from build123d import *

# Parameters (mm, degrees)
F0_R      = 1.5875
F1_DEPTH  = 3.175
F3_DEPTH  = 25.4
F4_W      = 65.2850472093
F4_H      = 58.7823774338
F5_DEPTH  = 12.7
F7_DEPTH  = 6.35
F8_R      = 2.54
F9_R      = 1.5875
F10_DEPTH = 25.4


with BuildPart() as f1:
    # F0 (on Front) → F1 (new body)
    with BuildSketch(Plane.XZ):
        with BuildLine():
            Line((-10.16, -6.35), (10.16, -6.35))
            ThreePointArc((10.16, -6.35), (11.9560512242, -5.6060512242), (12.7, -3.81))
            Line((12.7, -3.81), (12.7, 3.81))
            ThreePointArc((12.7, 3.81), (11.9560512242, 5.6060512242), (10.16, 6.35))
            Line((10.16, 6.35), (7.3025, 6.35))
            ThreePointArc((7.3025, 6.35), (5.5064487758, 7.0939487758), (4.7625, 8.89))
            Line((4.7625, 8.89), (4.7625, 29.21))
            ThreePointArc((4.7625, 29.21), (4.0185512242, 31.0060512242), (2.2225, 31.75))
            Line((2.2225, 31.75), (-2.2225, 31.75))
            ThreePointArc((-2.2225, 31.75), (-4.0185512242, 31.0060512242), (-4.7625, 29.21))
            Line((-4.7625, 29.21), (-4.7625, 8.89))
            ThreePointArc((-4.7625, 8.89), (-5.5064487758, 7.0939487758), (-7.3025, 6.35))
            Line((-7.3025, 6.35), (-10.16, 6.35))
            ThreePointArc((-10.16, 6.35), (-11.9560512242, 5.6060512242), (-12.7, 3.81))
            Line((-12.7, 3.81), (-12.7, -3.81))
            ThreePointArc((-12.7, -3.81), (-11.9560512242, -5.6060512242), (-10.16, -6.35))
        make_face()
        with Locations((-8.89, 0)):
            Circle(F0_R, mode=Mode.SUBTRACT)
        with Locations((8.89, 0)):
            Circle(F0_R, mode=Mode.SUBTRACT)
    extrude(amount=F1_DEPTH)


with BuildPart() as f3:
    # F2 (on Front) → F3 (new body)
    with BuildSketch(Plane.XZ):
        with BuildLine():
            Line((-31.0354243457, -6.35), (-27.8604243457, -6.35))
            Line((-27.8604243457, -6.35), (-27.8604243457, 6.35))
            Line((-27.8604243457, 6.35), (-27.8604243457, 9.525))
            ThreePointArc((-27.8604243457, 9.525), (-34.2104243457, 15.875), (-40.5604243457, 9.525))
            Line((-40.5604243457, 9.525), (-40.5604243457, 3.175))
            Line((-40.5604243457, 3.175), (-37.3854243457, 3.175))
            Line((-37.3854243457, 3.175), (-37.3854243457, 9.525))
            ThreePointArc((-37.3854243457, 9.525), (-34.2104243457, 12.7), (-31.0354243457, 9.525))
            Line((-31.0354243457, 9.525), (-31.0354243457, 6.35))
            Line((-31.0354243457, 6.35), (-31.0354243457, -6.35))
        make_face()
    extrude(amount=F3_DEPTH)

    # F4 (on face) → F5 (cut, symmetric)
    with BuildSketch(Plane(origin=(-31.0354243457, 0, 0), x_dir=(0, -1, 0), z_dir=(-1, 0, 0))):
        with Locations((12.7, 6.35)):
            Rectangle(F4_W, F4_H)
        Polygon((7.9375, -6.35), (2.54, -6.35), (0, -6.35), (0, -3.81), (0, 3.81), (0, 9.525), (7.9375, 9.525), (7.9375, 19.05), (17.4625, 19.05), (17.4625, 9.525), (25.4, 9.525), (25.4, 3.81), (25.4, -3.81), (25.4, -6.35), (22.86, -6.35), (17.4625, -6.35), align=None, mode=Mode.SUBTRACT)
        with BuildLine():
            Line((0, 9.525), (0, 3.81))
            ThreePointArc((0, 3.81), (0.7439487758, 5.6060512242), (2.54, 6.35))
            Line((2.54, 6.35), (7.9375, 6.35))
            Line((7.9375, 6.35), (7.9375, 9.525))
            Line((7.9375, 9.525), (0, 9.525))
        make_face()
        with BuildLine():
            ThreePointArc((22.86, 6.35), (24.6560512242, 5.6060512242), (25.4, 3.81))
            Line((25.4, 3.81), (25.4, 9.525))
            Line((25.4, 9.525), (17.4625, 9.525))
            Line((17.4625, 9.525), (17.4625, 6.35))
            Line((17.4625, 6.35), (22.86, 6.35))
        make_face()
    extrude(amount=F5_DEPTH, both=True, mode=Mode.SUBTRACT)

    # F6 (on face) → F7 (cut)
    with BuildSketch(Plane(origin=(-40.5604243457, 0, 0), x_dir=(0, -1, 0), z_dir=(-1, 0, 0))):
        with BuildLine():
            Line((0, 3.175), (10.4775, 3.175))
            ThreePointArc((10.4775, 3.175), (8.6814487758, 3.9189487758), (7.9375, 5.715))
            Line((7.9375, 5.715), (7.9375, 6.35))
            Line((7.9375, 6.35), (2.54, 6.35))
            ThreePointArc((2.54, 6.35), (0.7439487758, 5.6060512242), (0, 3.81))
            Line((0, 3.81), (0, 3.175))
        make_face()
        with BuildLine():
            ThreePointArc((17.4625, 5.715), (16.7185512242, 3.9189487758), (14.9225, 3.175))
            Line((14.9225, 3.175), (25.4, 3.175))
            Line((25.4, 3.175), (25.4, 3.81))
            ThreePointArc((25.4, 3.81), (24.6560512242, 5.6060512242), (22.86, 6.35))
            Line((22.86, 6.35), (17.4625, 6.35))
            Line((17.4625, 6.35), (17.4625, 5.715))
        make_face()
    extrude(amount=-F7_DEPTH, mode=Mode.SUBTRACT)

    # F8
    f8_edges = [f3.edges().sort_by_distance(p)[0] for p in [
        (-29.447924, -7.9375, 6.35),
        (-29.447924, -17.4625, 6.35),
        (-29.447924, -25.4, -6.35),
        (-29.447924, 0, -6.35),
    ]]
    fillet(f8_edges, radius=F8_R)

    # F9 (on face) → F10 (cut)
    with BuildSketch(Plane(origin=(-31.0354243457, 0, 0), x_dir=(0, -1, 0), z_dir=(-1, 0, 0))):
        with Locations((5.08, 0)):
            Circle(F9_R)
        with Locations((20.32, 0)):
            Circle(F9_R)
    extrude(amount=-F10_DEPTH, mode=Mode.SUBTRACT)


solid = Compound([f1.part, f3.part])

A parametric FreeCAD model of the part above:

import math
import FreeCAD as App
import Part
import Sketcher
from FreeCAD import Vector
Q = App.Units.Quantity


def edges_at(feature, points):
    """Names of the edges that pass closest to the given points."""
    edges = feature.Shape.Edges
    near = lambda p: min(range(len(edges)), key=lambda i: edges[i].distToShape(Part.Vertex(*p))[0])
    return sorted({f"Edge{near(p) + 1}" for p in points})


def add_polygon(sketch, points):
    """Adds a closed chain of lines whose ends are joined by coincident constraints."""
    first, n = sketch.GeometryCount, len(points)
    for a, b in zip(points, points[1:] + points[:1]):
        sketch.addGeometry(Part.LineSegment(App.Vector(*a, 0), App.Vector(*b, 0)), False)
    for i in range(n):
        sketch.addConstraint(Sketcher.Constraint("Coincident", first + i, 2, first + (i + 1) % n, 1))

doc = App.newDocument("Part")
body = doc.addObject("PartDesign::Body", "Body")

# Sketch on XZ plane
sketch1 = body.newObject("Sketcher::SketchObject", "Sketch")
sketch1.AttachmentSupport = (doc.getObject("XZ_Plane"), [""])
sketch1.MapMode = "FlatFace"
sketch1.addGeometry([
    Part.LineSegment(Vector(-10.16, -6.35, 0), Vector(10.16, -6.35, 0)),  # 0
    Part.ArcOfCircle(Part.Circle(Vector(10.16, -3.81, 0), Vector(0, 0, 1), 2.54), math.radians(-90), math.radians(0)),  # 1
    Part.LineSegment(Vector(12.7, -3.81, 0), Vector(12.7, 3.81, 0)),  # 2
    Part.ArcOfCircle(Part.Circle(Vector(10.16, 3.81, 0), Vector(0, 0, 1), 2.54), math.radians(0), math.radians(90)),  # 3
    Part.LineSegment(Vector(10.16, 6.35, 0), Vector(7.3025, 6.35, 0)),  # 4
    Part.ArcOfCircle(Part.Circle(Vector(7.3025, 8.89, 0), Vector(0, 0, 1), 2.54), math.radians(180), math.radians(270)),  # 5
    Part.LineSegment(Vector(4.7625, 8.89, 0), Vector(4.7625, 29.21, 0)),  # 6
    Part.ArcOfCircle(Part.Circle(Vector(2.2225, 29.21, 0), Vector(0, 0, 1), 2.54), math.radians(0), math.radians(90)),  # 7
    Part.LineSegment(Vector(2.2225, 31.75, 0), Vector(-2.2225, 31.75, 0)),  # 8
    Part.ArcOfCircle(Part.Circle(Vector(-2.2225, 29.21, 0), Vector(0, 0, 1), 2.54), math.radians(90), math.radians(180)),  # 9
    Part.LineSegment(Vector(-4.7625, 29.21, 0), Vector(-4.7625, 8.89, 0)),  # 10
    Part.ArcOfCircle(Part.Circle(Vector(-7.3025, 8.89, 0), Vector(0, 0, 1), 2.54), math.radians(-90), math.radians(0)),  # 11
    Part.LineSegment(Vector(-7.3025, 6.35, 0), Vector(-10.16, 6.35, 0)),  # 12
    Part.ArcOfCircle(Part.Circle(Vector(-10.16, 3.81, 0), Vector(0, 0, 1), 2.54), math.radians(90), math.radians(180)),  # 13
    Part.LineSegment(Vector(-12.7, 3.81, 0), Vector(-12.7, -3.81, 0)),  # 14
    Part.ArcOfCircle(Part.Circle(Vector(-10.16, -3.81, 0), Vector(0, 0, 1), 2.54), math.radians(180), math.radians(270)),  # 15
    Part.Circle(Vector(-8.89, 0, 0), Vector(0, 0, 1), 1.5875),  # 16
    Part.Circle(Vector(8.89, 0, 0), Vector(0, 0, 1), 1.5875),  # 17
], False)
sketch1.addConstraint([
    Sketcher.Constraint("Tangent", 0, 2, 1, 1),
    Sketcher.Constraint("Tangent", 1, 2, 2, 1),
    Sketcher.Constraint("Tangent", 2, 2, 3, 1),
    Sketcher.Constraint("Tangent", 3, 2, 4, 1),
    Sketcher.Constraint("Tangent", 4, 2, 5, 2),
    Sketcher.Constraint("Tangent", 5, 1, 6, 1),
    Sketcher.Constraint("Tangent", 6, 2, 7, 1),
    Sketcher.Constraint("Tangent", 7, 2, 8, 1),
    Sketcher.Constraint("Tangent", 8, 2, 9, 1),
    Sketcher.Constraint("Tangent", 9, 2, 10, 1),
    Sketcher.Constraint("Tangent", 10, 2, 11, 2),
    Sketcher.Constraint("Tangent", 11, 1, 12, 1),
    Sketcher.Constraint("Tangent", 12, 2, 13, 1),
    Sketcher.Constraint("Tangent", 13, 2, 14, 1),
    Sketcher.Constraint("Tangent", 14, 2, 15, 1),
    Sketcher.Constraint("Tangent", 15, 2, 0, 1),
    Sketcher.Constraint("Horizontal", 0),
    Sketcher.Constraint("Vertical", 2),
    Sketcher.Constraint("Horizontal", 4),
    Sketcher.Constraint("Vertical", 6),
    Sketcher.Constraint("Horizontal", 8),
    Sketcher.Constraint("Vertical", 10),
    Sketcher.Constraint("Horizontal", 12),
    Sketcher.Constraint("Vertical", 14),
    Sketcher.Constraint("Equal", 1, 3),
    Sketcher.Constraint("Equal", 3, 5),
    Sketcher.Constraint("Equal", 5, 7),
    Sketcher.Constraint("Equal", 7, 9),
    Sketcher.Constraint("Equal", 9, 11),
    Sketcher.Constraint("Equal", 11, 13),
    Sketcher.Constraint("Equal", 13, 15),
    Sketcher.Constraint("Equal", 16, 17),
    Sketcher.Constraint("Symmetric", 1, 3, 13, 3, -1, 1),
    Sketcher.Constraint("Symmetric", 16, 3, 17, 3, -1, 1),
    Sketcher.Constraint("Symmetric", 5, 3, 11, 3, -2),
    Sketcher.Constraint("PointOnObject", 16, 3, -1),
    Sketcher.Constraint("Equal", 0, 6),
    Sketcher.Constraint("Radius", 1, Q("0.1 in")),
    Sketcher.Constraint("Diameter", 16, Q("0.125 in")),
    Sketcher.Constraint("DistanceX", 0, 1, 0, 2, Q("0.8 in")),
    Sketcher.Constraint("DistanceY", 2, 1, 2, 2, Q("0.3 in")),
    Sketcher.Constraint("DistanceX", 16, 3, 17, 3, Q("0.7 in")),
    Sketcher.Constraint("DistanceX", 8, 2, 8, 1, Q("0.175 in")),
])
pad1 = body.newObject("PartDesign::Pad", "Pad")
pad1.Profile = sketch1
pad1.Length = Q("0.125 in")
body2 = doc.addObject("PartDesign::Body", "Body001")

# Sketch on XZ plane
sketch2 = body2.newObject("Sketcher::SketchObject", "Sketch001")
sketch2.AttachmentSupport = (doc.getObject("XZ_Plane001"), [""])
sketch2.MapMode = "FlatFace"
sketch2.addGeometry([
    Part.LineSegment(Vector(-31.035424, -6.35, 0), Vector(-27.860424, -6.35, 0)),  # 0
    Part.LineSegment(Vector(-27.860424, -6.35, 0), Vector(-27.860424, 9.525, 0)),  # 1
    Part.ArcOfCircle(Part.Circle(Vector(-34.210424, 9.525, 0), Vector(0, 0, 1), 6.35), math.radians(0), math.radians(180)),  # 2
    Part.LineSegment(Vector(-40.560424, 9.525, 0), Vector(-40.560424, 3.175, 0)),  # 3
    Part.LineSegment(Vector(-40.560424, 3.175, 0), Vector(-37.385424, 3.175, 0)),  # 4
    Part.LineSegment(Vector(-37.385424, 3.175, 0), Vector(-37.385424, 9.525, 0)),  # 5
    Part.ArcOfCircle(Part.Circle(Vector(-34.210424, 9.525, 0), Vector(0, 0, 1), 3.175), math.radians(0), math.radians(180)),  # 6
    Part.LineSegment(Vector(-31.035424, 9.525, 0), Vector(-31.035424, -6.35, 0)),  # 7
], False)
sketch2.addConstraint([
    Sketcher.Constraint("Coincident", 0, 2, 1, 1),
    Sketcher.Constraint("Tangent", 1, 2, 2, 1),
    Sketcher.Constraint("Tangent", 2, 2, 3, 1),
    Sketcher.Constraint("Coincident", 3, 2, 4, 1),
    Sketcher.Constraint("Coincident", 4, 2, 5, 1),
    Sketcher.Constraint("Tangent", 5, 2, 6, 2),
    Sketcher.Constraint("Tangent", 6, 1, 7, 1),
    Sketcher.Constraint("Coincident", 7, 2, 0, 1),
    Sketcher.Constraint("Horizontal", 0),
    Sketcher.Constraint("Vertical", 1),
    Sketcher.Constraint("Vertical", 3),
    Sketcher.Constraint("Horizontal", 4),
    Sketcher.Constraint("Vertical", 5),
    Sketcher.Constraint("Vertical", 7),
    Sketcher.Constraint("Coincident", 6, 3, 2, 3),
    Sketcher.Constraint("Radius", 2, Q("0.25 in")),
    Sketcher.Constraint("Radius", 6, Q("0.125 in")),
    Sketcher.Constraint("DistanceY", 3, 2, 3, 1, Q("0.25 in")),
    Sketcher.Constraint("DistanceY", 1, 1, 1, 2, Q("0.625 in")),
    Sketcher.Constraint("DistanceY", 0, 2, -1, 1, Q("0.25 in")),
    Sketcher.Constraint("DistanceX", 2, 3, -1, 1, 34.210424),
])
pad2 = body2.newObject("PartDesign::Pad", "Pad001")
pad2.Profile = sketch2
pad2.Length = Q("1 in")

# Sketch on YZ plane
sketch3 = body2.newObject("Sketcher::SketchObject", "Sketch002")
sketch3.AttachmentSupport = (doc.getObject("YZ_Plane001"), [""])
sketch3.MapMode = "FlatFace"
sketch3.AttachmentOffset = App.Placement(Vector(0, 0, -31.035424), App.Rotation())
add_polygon(sketch3, [(19.942524, 35.741189), (19.942524, -23.041189), (-45.342524, -23.041189), (-45.342524, 35.741189)])  # lines 0-3
sketch3.addGeometry(Part.LineSegment(Vector(-25.4, -6.35, 0), Vector(0, -6.35, 0)), False)  # 4
sketch3.addGeometry(Part.LineSegment(Vector(0, -6.35, 0), Vector(0, 3.81, 0)), False)  # 5
sketch3.addGeometry(Part.ArcOfCircle(Part.Circle(Vector(-2.54, 3.81, 0), Vector(0, 0, 1), 2.54), math.radians(0), math.radians(90)), False)  # 6
sketch3.addGeometry(Part.LineSegment(Vector(-2.54, 6.35, 0), Vector(-7.9375, 6.35, 0)), False)  # 7
sketch3.addGeometry(Part.LineSegment(Vector(-7.9375, 6.35, 0), Vector(-7.9375, 19.05, 0)), False)  # 8
sketch3.addGeometry(Part.LineSegment(Vector(-7.9375, 19.05, 0), Vector(-17.4625, 19.05, 0)), False)  # 9
sketch3.addGeometry(Part.LineSegment(Vector(-17.4625, 19.05, 0), Vector(-17.4625, 6.35, 0)), False)  # 10
sketch3.addGeometry(Part.LineSegment(Vector(-17.4625, 6.35, 0), Vector(-22.86, 6.35, 0)), False)  # 11
sketch3.addGeometry(Part.ArcOfCircle(Part.Circle(Vector(-22.86, 3.81, 0), Vector(0, 0, 1), 2.54), math.radians(90), math.radians(180)), False)  # 12
sketch3.addGeometry(Part.LineSegment(Vector(-25.4, 3.81, 0), Vector(-25.4, -6.35, 0)), False)  # 13
sketch3.addConstraint([
    Sketcher.Constraint("Coincident", 4, 2, 5, 1),
    Sketcher.Constraint("Tangent", 5, 2, 6, 1),
    Sketcher.Constraint("Tangent", 6, 2, 7, 1),
    Sketcher.Constraint("Coincident", 7, 2, 8, 1),
    Sketcher.Constraint("Coincident", 8, 2, 9, 1),
    Sketcher.Constraint("Coincident", 9, 2, 10, 1),
    Sketcher.Constraint("Coincident", 10, 2, 11, 1),
    Sketcher.Constraint("Tangent", 11, 2, 12, 1),
    Sketcher.Constraint("Tangent", 12, 2, 13, 1),
    Sketcher.Constraint("Coincident", 13, 2, 4, 1),
    Sketcher.Constraint("Vertical", 0),
    Sketcher.Constraint("Horizontal", 1),
    Sketcher.Constraint("Vertical", 2),
    Sketcher.Constraint("Horizontal", 3),
    Sketcher.Constraint("Horizontal", 4),
    Sketcher.Constraint("Vertical", 5),
    Sketcher.Constraint("Horizontal", 7),
    Sketcher.Constraint("Vertical", 8),
    Sketcher.Constraint("Horizontal", 9),
    Sketcher.Constraint("Vertical", 10),
    Sketcher.Constraint("Horizontal", 11),
    Sketcher.Constraint("Vertical", 13),
    Sketcher.Constraint("Equal", 6, 12),
    Sketcher.Constraint("PointOnObject", 4, 2, -2),
    Sketcher.Constraint("Horizontal", 6, 3, 12, 3),
    Sketcher.Constraint("Equal", 7, 11),
    Sketcher.Constraint("Radius", 6, Q("0.1 in")),
    Sketcher.Constraint("DistanceX", 4, 1, 4, 2, Q("1 in")),
    Sketcher.Constraint("DistanceY", 5, 1, 5, 2, Q("0.4 in")),
    Sketcher.Constraint("DistanceY", 8, 1, 8, 2, Q("0.5 in")),
    Sketcher.Constraint("DistanceX", 9, 2, 9, 1, Q("0.375 in")),
    Sketcher.Constraint("DistanceY", -1, 1, 6, 3, Q("0.15 in")),
    Sketcher.Constraint("DistanceX", 1, 2, 1, 1, 65.285047),
    Sketcher.Constraint("DistanceY", 0, 2, 0, 1, 58.782377),
    Sketcher.Constraint("DistanceY", 0, 2, -1, 1, 23.041189),
    Sketcher.Constraint("DistanceX", -1, 1, 0, 2, 19.942524),
])
pocket1 = body2.newObject("PartDesign::Pocket", "Pocket")
pocket1.Profile = sketch3
pocket1.Length = Q("1 in")
pocket1.Midplane = True

# Sketch on YZ plane
sketch4 = body2.newObject("Sketcher::SketchObject", "Sketch003")
sketch4.AttachmentSupport = (doc.getObject("YZ_Plane001"), [""])
sketch4.MapMode = "FlatFace"
sketch4.AttachmentOffset = App.Placement(Vector(0, 0, -40.560424), App.Rotation())
sketch4.addGeometry([
    Part.LineSegment(Vector(0, 3.175, 0), Vector(-10.4775, 3.175, 0)),  # 0
    Part.ArcOfCircle(Part.Circle(Vector(-10.4775, 5.715, 0), Vector(0, 0, 1), 2.54), math.radians(-90), math.radians(0)),  # 1
    Part.LineSegment(Vector(-7.9375, 5.715, 0), Vector(-7.9375, 6.35, 0)),  # 2
    Part.LineSegment(Vector(-7.9375, 6.35, 0), Vector(-2.54, 6.35, 0)),  # 3
    Part.ArcOfCircle(Part.Circle(Vector(-2.54, 3.81, 0), Vector(0, 0, 1), 2.54), math.radians(0), math.radians(90)),  # 4
    Part.LineSegment(Vector(0, 3.81, 0), Vector(0, 3.175, 0)),  # 5
    Part.ArcOfCircle(Part.Circle(Vector(-14.9225, 5.715, 0), Vector(0, 0, 1), 2.54), math.radians(180), math.radians(270)),  # 6
    Part.LineSegment(Vector(-14.9225, 3.175, 0), Vector(-25.4, 3.175, 0)),  # 7
    Part.LineSegment(Vector(-25.4, 3.175, 0), Vector(-25.4, 3.81, 0)),  # 8
    Part.ArcOfCircle(Part.Circle(Vector(-22.86, 3.81, 0), Vector(0, 0, 1), 2.54), math.radians(90), math.radians(180)),  # 9
    Part.LineSegment(Vector(-22.86, 6.35, 0), Vector(-17.4625, 6.35, 0)),  # 10
    Part.LineSegment(Vector(-17.4625, 6.35, 0), Vector(-17.4625, 5.715, 0)),  # 11
], False)
sketch4.addConstraint([
    Sketcher.Constraint("Tangent", 0, 2, 1, 1),
    Sketcher.Constraint("Tangent", 1, 2, 2, 1),
    Sketcher.Constraint("Coincident", 2, 2, 3, 1),
    Sketcher.Constraint("Tangent", 3, 2, 4, 2),
    Sketcher.Constraint("Tangent", 4, 1, 5, 1),
    Sketcher.Constraint("Coincident", 5, 2, 0, 1),
    Sketcher.Constraint("Tangent", 6, 2, 7, 1),
    Sketcher.Constraint("Coincident", 7, 2, 8, 1),
    Sketcher.Constraint("Tangent", 8, 2, 9, 2),
    Sketcher.Constraint("Tangent", 9, 1, 10, 1),
    Sketcher.Constraint("Coincident", 10, 2, 11, 1),
    Sketcher.Constraint("Tangent", 11, 2, 6, 1),
    Sketcher.Constraint("Horizontal", 0),
    Sketcher.Constraint("Vertical", 2),
    Sketcher.Constraint("Horizontal", 3),
    Sketcher.Constraint("Vertical", 5),
    Sketcher.Constraint("Horizontal", 7),
    Sketcher.Constraint("Vertical", 8),
    Sketcher.Constraint("Horizontal", 10),
    Sketcher.Constraint("Vertical", 11),
    Sketcher.Constraint("Equal", 1, 4),
    Sketcher.Constraint("Equal", 4, 6),
    Sketcher.Constraint("Equal", 6, 9),
    Sketcher.Constraint("PointOnObject", 4, 1, -2),
    Sketcher.Constraint("Horizontal", 1, 3, 6, 3),
    Sketcher.Constraint("Horizontal", 4, 3, 9, 3),
    Sketcher.Constraint("Equal", 0, 7),
    Sketcher.Constraint("Radius", 1, Q("0.1 in")),
    Sketcher.Constraint("DistanceX", 7, 2, -1, 1, Q("1 in")),
    Sketcher.Constraint("DistanceY", 2, 1, 2, 2, Q("0.025 in")),
    Sketcher.Constraint("DistanceY", -1, 1, 4, 3, Q("0.15 in")),
    Sketcher.Constraint("DistanceX", 0, 2, 0, 1, Q("0.4125 in")),
])
pocket2 = body2.newObject("PartDesign::Pocket", "Pocket001")
pocket2.Profile = sketch4
pocket2.Length = Q("0.25 in")
pocket2.Reversed = True
doc.recompute()

fillet = body2.newObject("PartDesign::Fillet", "Fillet")
fillet.Base = (pocket2, edges_at(pocket2, [
    (-29.448, -7.938, 6.35),
    (-29.448, -17.462, 6.35),
    (-29.448, -25.4, -6.35),
    (-29.448, 0, -6.35),
]))
fillet.Radius = Q("0.1 in")

# Sketch on YZ plane
sketch5 = body2.newObject("Sketcher::SketchObject", "Sketch004")
sketch5.AttachmentSupport = (doc.getObject("YZ_Plane001"), [""])
sketch5.MapMode = "FlatFace"
sketch5.AttachmentOffset = App.Placement(Vector(0, 0, -31.035424), App.Rotation())
sketch5.addGeometry([
    Part.Circle(Vector(-5.08, 0, 0), Vector(0, 0, 1), 1.5875),
    Part.Circle(Vector(-20.32, 0, 0), Vector(0, 0, 1), 1.5875),
], False)
sketch5.addConstraint([
    Sketcher.Constraint("Equal", 0, 1),
    Sketcher.Constraint("PointOnObject", 0, 3, -1),
    Sketcher.Constraint("PointOnObject", 1, 3, -1),
    Sketcher.Constraint("Diameter", 0, Q("0.125 in")),
    Sketcher.Constraint("DistanceX", 0, 3, -1, 1, Q("0.2 in")),
    Sketcher.Constraint("DistanceX", 1, 3, -1, 1, Q("0.8 in")),
])
pocket3 = body2.newObject("PartDesign::Pocket", "Pocket002")
pocket3.Profile = sketch5
pocket3.Length = Q("1 in")
pocket3.Reversed = True

doc.recompute()
